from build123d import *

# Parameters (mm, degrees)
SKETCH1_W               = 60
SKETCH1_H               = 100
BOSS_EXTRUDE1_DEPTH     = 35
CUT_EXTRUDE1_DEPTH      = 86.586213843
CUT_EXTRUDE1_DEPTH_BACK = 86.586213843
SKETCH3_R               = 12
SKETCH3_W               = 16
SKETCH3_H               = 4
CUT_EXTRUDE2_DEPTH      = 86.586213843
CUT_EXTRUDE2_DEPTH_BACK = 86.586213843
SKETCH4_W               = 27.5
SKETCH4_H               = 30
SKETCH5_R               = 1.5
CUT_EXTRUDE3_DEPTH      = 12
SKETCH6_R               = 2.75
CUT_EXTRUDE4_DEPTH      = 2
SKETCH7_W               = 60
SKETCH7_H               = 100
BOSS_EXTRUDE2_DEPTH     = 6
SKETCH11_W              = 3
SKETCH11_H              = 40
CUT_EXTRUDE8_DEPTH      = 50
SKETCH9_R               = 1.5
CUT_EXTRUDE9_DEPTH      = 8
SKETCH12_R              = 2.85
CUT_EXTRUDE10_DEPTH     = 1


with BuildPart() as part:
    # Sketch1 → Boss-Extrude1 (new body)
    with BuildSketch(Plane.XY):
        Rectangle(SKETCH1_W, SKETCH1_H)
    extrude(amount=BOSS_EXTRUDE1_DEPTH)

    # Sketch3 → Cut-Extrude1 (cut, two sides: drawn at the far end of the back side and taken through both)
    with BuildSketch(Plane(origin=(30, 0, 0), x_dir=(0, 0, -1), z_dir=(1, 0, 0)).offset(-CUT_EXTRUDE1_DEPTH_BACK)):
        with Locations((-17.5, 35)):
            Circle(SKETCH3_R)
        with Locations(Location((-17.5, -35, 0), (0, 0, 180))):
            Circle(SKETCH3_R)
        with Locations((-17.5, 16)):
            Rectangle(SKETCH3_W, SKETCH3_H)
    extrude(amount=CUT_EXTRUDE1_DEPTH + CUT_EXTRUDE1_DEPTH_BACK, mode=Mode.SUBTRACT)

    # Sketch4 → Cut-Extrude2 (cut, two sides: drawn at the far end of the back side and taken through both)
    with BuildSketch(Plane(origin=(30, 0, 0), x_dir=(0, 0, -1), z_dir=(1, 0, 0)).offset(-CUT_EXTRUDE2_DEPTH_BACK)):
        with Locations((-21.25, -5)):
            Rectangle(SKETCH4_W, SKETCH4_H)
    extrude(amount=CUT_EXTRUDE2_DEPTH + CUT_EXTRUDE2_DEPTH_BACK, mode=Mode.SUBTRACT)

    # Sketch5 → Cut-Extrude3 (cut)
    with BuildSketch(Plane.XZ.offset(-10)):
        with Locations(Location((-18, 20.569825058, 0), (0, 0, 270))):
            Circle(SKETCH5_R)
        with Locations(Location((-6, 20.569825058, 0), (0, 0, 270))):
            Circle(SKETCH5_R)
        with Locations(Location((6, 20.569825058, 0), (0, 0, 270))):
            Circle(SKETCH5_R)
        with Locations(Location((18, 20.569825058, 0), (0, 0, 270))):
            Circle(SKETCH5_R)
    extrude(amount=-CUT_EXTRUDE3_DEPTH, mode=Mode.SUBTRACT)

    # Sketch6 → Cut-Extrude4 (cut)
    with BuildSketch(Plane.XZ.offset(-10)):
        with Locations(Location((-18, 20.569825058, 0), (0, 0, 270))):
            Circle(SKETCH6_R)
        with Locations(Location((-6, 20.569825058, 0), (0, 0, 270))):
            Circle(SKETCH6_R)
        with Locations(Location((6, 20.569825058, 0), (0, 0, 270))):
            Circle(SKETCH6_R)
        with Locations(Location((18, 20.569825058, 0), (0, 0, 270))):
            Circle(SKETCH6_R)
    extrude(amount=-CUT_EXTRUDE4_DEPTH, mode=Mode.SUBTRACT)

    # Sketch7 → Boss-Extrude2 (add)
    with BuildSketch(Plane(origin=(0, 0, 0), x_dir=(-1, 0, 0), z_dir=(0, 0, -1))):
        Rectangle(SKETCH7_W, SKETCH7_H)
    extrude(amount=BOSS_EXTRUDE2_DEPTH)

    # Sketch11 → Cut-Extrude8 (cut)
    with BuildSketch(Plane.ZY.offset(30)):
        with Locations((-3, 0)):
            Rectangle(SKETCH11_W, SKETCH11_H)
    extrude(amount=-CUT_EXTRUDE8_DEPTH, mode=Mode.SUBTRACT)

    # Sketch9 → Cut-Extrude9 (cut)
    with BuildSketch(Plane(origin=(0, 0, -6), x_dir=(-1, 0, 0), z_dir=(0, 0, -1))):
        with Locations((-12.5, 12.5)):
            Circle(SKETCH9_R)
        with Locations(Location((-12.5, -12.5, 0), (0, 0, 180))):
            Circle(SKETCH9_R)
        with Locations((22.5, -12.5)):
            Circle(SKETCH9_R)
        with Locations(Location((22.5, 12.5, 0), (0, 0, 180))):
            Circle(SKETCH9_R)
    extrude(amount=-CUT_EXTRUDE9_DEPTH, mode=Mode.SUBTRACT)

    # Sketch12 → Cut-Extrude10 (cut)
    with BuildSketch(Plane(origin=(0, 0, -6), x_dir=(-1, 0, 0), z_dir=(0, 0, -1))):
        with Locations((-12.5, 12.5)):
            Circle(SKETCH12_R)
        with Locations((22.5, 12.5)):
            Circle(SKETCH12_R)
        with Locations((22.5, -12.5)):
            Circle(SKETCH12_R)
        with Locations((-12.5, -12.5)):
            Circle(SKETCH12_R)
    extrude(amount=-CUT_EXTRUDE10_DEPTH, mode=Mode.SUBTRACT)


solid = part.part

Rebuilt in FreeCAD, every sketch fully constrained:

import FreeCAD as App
import Part
import Sketcher
Q = App.Units.Quantity


def add_polygon(sketch, points):
    """Adds a closed chain of lines whose ends are joined by coincident constraints."""
    first, n = sketch.GeometryCount, len(points)
    for a, b in zip(points, points[1:] + points[:1]):
        sketch.addGeometry(Part.LineSegment(App.Vector(*a, 0), App.Vector(*b, 0)), False)
    for i in range(n):
        sketch.addConstraint(Sketcher.Constraint("Coincident", first + i, 2, first + (i + 1) % n, 1))

doc = App.newDocument("Part")
params = doc.addObject("Spreadsheet::Sheet", "Params")
for row, (alias, value) in enumerate([
    ("sketch1_width", "60 mm"),
    ("sketch1_height", "100 mm"),
    ("pad1_length", "35 mm"),
    ("sketch2_diameter", "24 mm"),
    ("sketch2_width", "4 mm"),
    ("sketch2_height", "16 mm"),
    ("sketch3_width", "30 mm"),
    ("sketch3_height", "27.5 mm"),
    ("sketch4_diameter", "3 mm"),
    ("pocket3_length", "12 mm"),
    ("sketch5_diameter", "5.5 mm"),
    ("pocket4_length", "2 mm"),
    ("sketch6_width", "60 mm"),
    ("sketch6_height", "100 mm"),
    ("pad2_length", "6 mm"),
    ("sketch7_width", "40 mm"),
    ("sketch7_height", "3 mm"),
    ("pocket5_length", "50 mm"),
    ("sketch8_diameter", "3 mm"),
    ("pocket6_length", "8 mm"),
    ("sketch9_diameter", "5.7 mm"),
    ("pocket7_length", "1 mm"),
], start=1):
    params.set(f"A{row}", alias)
    params.set(f"B{row}", "=" + value)
    params.setAlias(f"B{row}", alias)

body = doc.addObject("PartDesign::Body", "Body")

# Sketch on XY plane
sketch1 = doc.addObject("Sketcher::SketchObject", "Sketch")
body.addObject(sketch1)
sketch1.AttachmentSupport = (doc.XY_Plane, [""])
sketch1.MapMode = "FlatFace"
add_polygon(sketch1, [(-30, 50), (-30, -50), (30, -50), (30, 50)])  # lines 0-3
sketch1.addConstraint([
    Sketcher.Constraint("Vertical", 0),
    Sketcher.Constraint("Horizontal", 1),
    Sketcher.Constraint("Vertical", 2),
    Sketcher.Constraint("Horizontal", 3),
    Sketcher.Constraint("Symmetric", 0, 2, 2, 2, -1, 1),
    Sketcher.Constraint("DistanceX", 1, 1, 1, 2, Q("60 mm")),
    Sketcher.Constraint("DistanceY", 0, 2, 0, 1, Q("100 mm")),
])
sketch1.setExpression("Constraints[9]", "Params.sketch1_width")
sketch1.setExpression("Constraints[10]", "Params.sketch1_height")
pad1 = doc.addObject("PartDesign::Pad", "Pad")
body.addObject(pad1)
pad1.Profile = sketch1
pad1.setExpression("Length", "Params.pad1_length")

# Sketch on YZ plane
sketch2 = doc.addObject("Sketcher::SketchObject", "Sketch001")
body.addObject(sketch2)
sketch2.AttachmentSupport = (doc.YZ_Plane, [""])
sketch2.MapMode = "FlatFace"
sketch2.AttachmentOffset = App.Placement(App.Vector(0, 0, 30), App.Rotation())
sketch2.addGeometry(Part.Circle(App.Vector(35, 17.5, 0), App.Vector(0, 0, 1), 12), False)  # 0
sketch2.addGeometry(Part.Circle(App.Vector(-35, 17.5, 0), App.Vector(0, 0, 1), 12), False)  # 1
add_polygon(sketch2, [(18, 25.5), (14, 25.5), (14, 9.5), (18, 9.5)])  # lines 2-5
sketch2.addConstraint([
    Sketcher.Constraint("Horizontal", 2),
    Sketcher.Constraint("Vertical", 3),
    Sketcher.Constraint("Horizontal", 4),
    Sketcher.Constraint("Vertical", 5),
    Sketcher.Constraint("Equal", 0, 1),
    Sketcher.Constraint("Symmetric", 0, 3, 1, 3, -2),
    Sketcher.Constraint("Diameter", 0, Q("24 mm")),
    Sketcher.Constraint("DistanceX", 2, 2, 2, 1, Q("4 mm")),
    Sketcher.Constraint("DistanceY", 3, 2, 3, 1, Q("16 mm")),
    Sketcher.Constraint("DistanceX", -1, 1, 0, 3, Q("35 mm")),
    Sketcher.Constraint("DistanceX", -1, 1, 2, 2, Q("14 mm")),
    Sketcher.Constraint("DistanceY", 0, 3, 2, 2, Q("8 mm")),
    Sketcher.Constraint("DistanceY", -1, 1, 0, 3, Q("17.5 mm")),
])
sketch2.setExpression("Constraints[10]", "Params.sketch2_diameter")
sketch2.setExpression("Constraints[11]", "Params.sketch2_width")
sketch2.setExpression("Constraints[12]", "Params.sketch2_height")
pocket1 = doc.addObject("PartDesign::Pocket", "Pocket")
body.addObject(pocket1)
pocket1.Profile = sketch2
pocket1.Type = "ThroughAll"
pocket1.Midplane = True

# Sketch on YZ plane
sketch3 = doc.addObject("Sketcher::SketchObject", "Sketch002")
body.addObject(sketch3)
sketch3.AttachmentSupport = (doc.YZ_Plane, [""])
sketch3.MapMode = "FlatFace"
sketch3.AttachmentOffset = App.Placement(App.Vector(0, 0, 30), App.Rotation())
add_polygon(sketch3, [(10, 35), (-20, 35), (-20, 7.5), (10, 7.5)])  # lines 0-3
sketch3.addConstraint([
    Sketcher.Constraint("Horizontal", 0),
    Sketcher.Constraint("Vertical", 1),
    Sketcher.Constraint("Horizontal", 2),
    Sketcher.Constraint("Vertical", 3),
    Sketcher.Constraint("DistanceX", 0, 2, 0, 1, Q("30 mm")),
    Sketcher.Constraint("DistanceY", 1, 2, 1, 1, Q("27.5 mm")),
    Sketcher.Constraint("DistanceX", 0, 2, -1, 1, Q("20 mm")),
    Sketcher.Constraint("DistanceY", -1, 1, 0, 2, Q("35 mm")),
])
sketch3.setExpression("Constraints[8]", "Params.sketch3_width")
sketch3.setExpression("Constraints[9]", "Params.sketch3_height")
pocket2 = doc.addObject("PartDesign::Pocket", "Pocket001")
body.addObject(pocket2)
pocket2.Profile = sketch3
pocket2.Type = "ThroughAll"
pocket2.Midplane = True

# Sketch on XZ plane
sketch4 = doc.addObject("Sketcher::SketchObject", "Sketch003")
body.addObject(sketch4)
sketch4.AttachmentSupport = (doc.XZ_Plane, [""])
sketch4.MapMode = "FlatFace"
sketch4.AttachmentOffset = App.Placement(App.Vector(0, 0, -10), App.Rotation())
sketch4.addGeometry([
    Part.Circle(App.Vector(-18, 20.569825, 0), App.Vector(0, 0, 1), 1.5),
    Part.Circle(App.Vector(-6, 20.569825, 0), App.Vector(0, 0, 1), 1.5),
    Part.Circle(App.Vector(6, 20.569825, 0), App.Vector(0, 0, 1), 1.5),
    Part.Circle(App.Vector(18, 20.569825, 0), App.Vector(0, 0, 1), 1.5),
], False)
sketch4.addConstraint([
    Sketcher.Constraint("Equal", 0, 1),
    Sketcher.Constraint("Equal", 1, 2),
    Sketcher.Constraint("Equal", 2, 3),
    Sketcher.Constraint("Symmetric", 1, 3, 2, 3, -2),
    Sketcher.Constraint("Symmetric", 0, 3, 3, 3, -2),
    Sketcher.Constraint("Horizontal", 0, 3, 1, 3),
    Sketcher.Constraint("Diameter", 0, Q("3 mm")),
    Sketcher.Constraint("DistanceX", 0, 3, -1, 1, Q("18 mm")),
    Sketcher.Constraint("DistanceX", 1, 3, -1, 1, Q("6 mm")),
    Sketcher.Constraint("DistanceY", -1, 1, 0, 3, Q("20.569825 mm")),
])
sketch4.setExpression("Constraints[6]", "Params.sketch4_diameter")
pocket3 = doc.addObject("PartDesign::Pocket", "Pocket002")
body.addObject(pocket3)
pocket3.Profile = sketch4
pocket3.setExpression("Length", "Params.pocket3_length")

# Sketch on XZ plane
sketch5 = doc.addObject("Sketcher::SketchObject", "Sketch004")
body.addObject(sketch5)
sketch5.AttachmentSupport = (doc.XZ_Plane, [""])
sketch5.MapMode = "FlatFace"
sketch5.AttachmentOffset = App.Placement(App.Vector(0, 0, -10), App.Rotation())
sketch5.addGeometry([
    Part.Circle(App.Vector(-18, 20.569825, 0), App.Vector(0, 0, 1), 2.75),
    Part.Circle(App.Vector(-6, 20.569825, 0), App.Vector(0, 0, 1), 2.75),
    Part.Circle(App.Vector(6, 20.569825, 0), App.Vector(0, 0, 1), 2.75),
    Part.Circle(App.Vector(18, 20.569825, 0), App.Vector(0, 0, 1), 2.75),
], False)
sketch5.addConstraint([
    Sketcher.Constraint("Equal", 0, 1),
    Sketcher.Constraint("Equal", 1, 2),
    Sketcher.Constraint("Equal", 2, 3),
    Sketcher.Constraint("Symmetric", 1, 3, 2, 3, -2),
    Sketcher.Constraint("Symmetric", 0, 3, 3, 3, -2),
    Sketcher.Constraint("Horizontal", 0, 3, 1, 3),
    Sketcher.Constraint("Diameter", 0, Q("5.5 mm")),
    Sketcher.Constraint("DistanceX", 0, 3, -1, 1, Q("18 mm")),
    Sketcher.Constraint("DistanceX", 1, 3, -1, 1, Q("6 mm")),
    Sketcher.Constraint("DistanceY", -1, 1, 0, 3, Q("20.569825 mm")),
])
sketch5.setExpression("Constraints[6]", "Params.sketch5_diameter")
pocket4 = doc.addObject("PartDesign::Pocket", "Pocket003")
body.addObject(pocket4)
pocket4.Profile = sketch5
pocket4.setExpression("Length", "Params.pocket4_length")

# Sketch on XY plane
sketch6 = doc.addObject("Sketcher::SketchObject", "Sketch005")
body.addObject(sketch6)
sketch6.AttachmentSupport = (doc.XY_Plane, [""])
sketch6.MapMode = "FlatFace"
add_polygon(sketch6, [(30, 50), (30, -50), (-30, -50), (-30, 50)])  # lines 0-3
sketch6.addConstraint([
    Sketcher.Constraint("Vertical", 0),
    Sketcher.Constraint("Horizontal", 1),
    Sketcher.Constraint("Vertical", 2),
    Sketcher.Constraint("Horizontal", 3),
    Sketcher.Constraint("Symmetric", 0, 2, 2, 2, -1, 1),
    Sketcher.Constraint("DistanceX", 1, 2, 1, 1, Q("60 mm")),
    Sketcher.Constraint("DistanceY", 0, 2, 0, 1, Q("100 mm")),
])
sketch6.setExpression("Constraints[9]", "Params.sketch6_width")
sketch6.setExpression("Constraints[10]", "Params.sketch6_height")
pad2 = doc.addObject("PartDesign::Pad", "Pad001")
body.addObject(pad2)
pad2.Profile = sketch6
pad2.setExpression("Length", "Params.pad2_length")
pad2.Reversed = True

# Sketch on YZ plane
sketch7 = doc.addObject("Sketcher::SketchObject", "Sketch006")
body.addObject(sketch7)
sketch7.AttachmentSupport = (doc.YZ_Plane, [""])
sketch7.MapMode = "FlatFace"
sketch7.AttachmentOffset = App.Placement(App.Vector(0, 0, -30), App.Rotation())
add_polygon(sketch7, [(20, -4.5), (-20, -4.5), (-20, -1.5), (20, -1.5)])  # lines 0-3
sketch7.addConstraint([
    Sketcher.Constraint("Horizontal", 0),
    Sketcher.Constraint("Vertical", 1),
    Sketcher.Constraint("Horizontal", 2),
    Sketcher.Constraint("Vertical", 3),
    Sketcher.Constraint("DistanceX", 0, 2, 0, 1, Q("40 mm")),
    Sketcher.Constraint("DistanceY", 1, 1, 1, 2, Q("3 mm")),
    Sketcher.Constraint("DistanceX", 0, 2, -1, 1, Q("20 mm")),
    Sketcher.Constraint("DistanceY", 0, 2, -1, 1, Q("4.5 mm")),
])
sketch7.setExpression("Constraints[8]", "Params.sketch7_width")
sketch7.setExpression("Constraints[9]", "Params.sketch7_height")
pocket5 = doc.addObject("PartDesign::Pocket", "Pocket004")
body.addObject(pocket5)
pocket5.Profile = sketch7
pocket5.setExpression("Length", "Params.pocket5_length")
pocket5.Reversed = True

# Sketch on XY plane
sketch8 = doc.addObject("Sketcher::SketchObject", "Sketch007")
body.addObject(sketch8)
sketch8.AttachmentSupport = (doc.XY_Plane, [""])
sketch8.MapMode = "FlatFace"
sketch8.AttachmentOffset = App.Placement(App.Vector(0, 0, -6), App.Rotation())
sketch8.addGeometry([
    Part.Circle(App.Vector(12.5, 12.5, 0), App.Vector(0, 0, 1), 1.5),
    Part.Circle(App.Vector(12.5, -12.5, 0), App.Vector(0, 0, 1), 1.5),
    Part.Circle(App.Vector(-22.5, -12.5, 0), App.Vector(0, 0, 1), 1.5),
    Part.Circle(App.Vector(-22.5, 12.5, 0), App.Vector(0, 0, 1), 1.5),
], False)
sketch8.addConstraint([
    Sketcher.Constraint("Equal", 0, 1),
    Sketcher.Constraint("Equal", 1, 2),
    Sketcher.Constraint("Equal", 2, 3),
    Sketcher.Constraint("Symmetric", 0, 3, 1, 3, -1),
    Sketcher.Constraint("Symmetric", 2, 3, 3, 3, -1),
    Sketcher.Constraint("Horizontal", 1, 3, 2, 3),
    Sketcher.Constraint("Diameter", 0, Q("3 mm")),
    Sketcher.Constraint("DistanceY", 1, 3, 0, 3, Q("25 mm")),
    Sketcher.Constraint("DistanceX", 2, 3, 1, 3, Q("35 mm")),
    Sketcher.Constraint("DistanceX", -1, 1, 0, 3, Q("12.5 mm")),
])
sketch8.setExpression("Constraints[6]", "Params.sketch8_diameter")
pocket6 = doc.addObject("PartDesign::Pocket", "Pocket005")
body.addObject(pocket6)
pocket6.Profile = sketch8
pocket6.setExpression("Length", "Params.pocket6_length")
pocket6.Reversed = True

# Sketch on XY plane
sketch9 = doc.addObject("Sketcher::SketchObject", "Sketch008")
body.addObject(sketch9)
sketch9.AttachmentSupport = (doc.XY_Plane, [""])
sketch9.MapMode = "FlatFace"
sketch9.AttachmentOffset = App.Placement(App.Vector(0, 0, -6), App.Rotation())
sketch9.addGeometry([
    Part.Circle(App.Vector(12.5, 12.5, 0), App.Vector(0, 0, 1), 2.85),
    Part.Circle(App.Vector(-22.5, 12.5, 0), App.Vector(0, 0, 1), 2.85),
    Part.Circle(App.Vector(-22.5, -12.5, 0), App.Vector(0, 0, 1), 2.85),
    Part.Circle(App.Vector(12.5, -12.5, 0), App.Vector(0, 0, 1), 2.85),
], False)
sketch9.addConstraint([
    Sketcher.Constraint("Equal", 0, 1),
    Sketcher.Constraint("Equal", 1, 2),
    Sketcher.Constraint("Equal", 2, 3),
    Sketcher.Constraint("Symmetric", 1, 3, 2, 3, -1),
    Sketcher.Constraint("Symmetric", 0, 3, 3, 3, -1),
    Sketcher.Constraint("Horizontal", 0, 3, 1, 3),
    Sketcher.Constraint("Diameter", 0, Q("5.7 mm")),
    Sketcher.Constraint("DistanceX", 1, 3, 0, 3, Q("35 mm")),
    Sketcher.Constraint("DistanceY", 2, 3, 1, 3, Q("25 mm")),
    Sketcher.Constraint("DistanceX", -1, 1, 0, 3, Q("12.5 mm")),
])
sketch9.setExpression("Constraints[6]", "Params.sketch9_diameter")
pocket7 = doc.addObject("PartDesign::Pocket", "Pocket006")
body.addObject(pocket7)
pocket7.Profile = sketch9
pocket7.setExpression("Length", "Params.pocket7_length")
pocket7.Reversed = True

doc.recompute()
